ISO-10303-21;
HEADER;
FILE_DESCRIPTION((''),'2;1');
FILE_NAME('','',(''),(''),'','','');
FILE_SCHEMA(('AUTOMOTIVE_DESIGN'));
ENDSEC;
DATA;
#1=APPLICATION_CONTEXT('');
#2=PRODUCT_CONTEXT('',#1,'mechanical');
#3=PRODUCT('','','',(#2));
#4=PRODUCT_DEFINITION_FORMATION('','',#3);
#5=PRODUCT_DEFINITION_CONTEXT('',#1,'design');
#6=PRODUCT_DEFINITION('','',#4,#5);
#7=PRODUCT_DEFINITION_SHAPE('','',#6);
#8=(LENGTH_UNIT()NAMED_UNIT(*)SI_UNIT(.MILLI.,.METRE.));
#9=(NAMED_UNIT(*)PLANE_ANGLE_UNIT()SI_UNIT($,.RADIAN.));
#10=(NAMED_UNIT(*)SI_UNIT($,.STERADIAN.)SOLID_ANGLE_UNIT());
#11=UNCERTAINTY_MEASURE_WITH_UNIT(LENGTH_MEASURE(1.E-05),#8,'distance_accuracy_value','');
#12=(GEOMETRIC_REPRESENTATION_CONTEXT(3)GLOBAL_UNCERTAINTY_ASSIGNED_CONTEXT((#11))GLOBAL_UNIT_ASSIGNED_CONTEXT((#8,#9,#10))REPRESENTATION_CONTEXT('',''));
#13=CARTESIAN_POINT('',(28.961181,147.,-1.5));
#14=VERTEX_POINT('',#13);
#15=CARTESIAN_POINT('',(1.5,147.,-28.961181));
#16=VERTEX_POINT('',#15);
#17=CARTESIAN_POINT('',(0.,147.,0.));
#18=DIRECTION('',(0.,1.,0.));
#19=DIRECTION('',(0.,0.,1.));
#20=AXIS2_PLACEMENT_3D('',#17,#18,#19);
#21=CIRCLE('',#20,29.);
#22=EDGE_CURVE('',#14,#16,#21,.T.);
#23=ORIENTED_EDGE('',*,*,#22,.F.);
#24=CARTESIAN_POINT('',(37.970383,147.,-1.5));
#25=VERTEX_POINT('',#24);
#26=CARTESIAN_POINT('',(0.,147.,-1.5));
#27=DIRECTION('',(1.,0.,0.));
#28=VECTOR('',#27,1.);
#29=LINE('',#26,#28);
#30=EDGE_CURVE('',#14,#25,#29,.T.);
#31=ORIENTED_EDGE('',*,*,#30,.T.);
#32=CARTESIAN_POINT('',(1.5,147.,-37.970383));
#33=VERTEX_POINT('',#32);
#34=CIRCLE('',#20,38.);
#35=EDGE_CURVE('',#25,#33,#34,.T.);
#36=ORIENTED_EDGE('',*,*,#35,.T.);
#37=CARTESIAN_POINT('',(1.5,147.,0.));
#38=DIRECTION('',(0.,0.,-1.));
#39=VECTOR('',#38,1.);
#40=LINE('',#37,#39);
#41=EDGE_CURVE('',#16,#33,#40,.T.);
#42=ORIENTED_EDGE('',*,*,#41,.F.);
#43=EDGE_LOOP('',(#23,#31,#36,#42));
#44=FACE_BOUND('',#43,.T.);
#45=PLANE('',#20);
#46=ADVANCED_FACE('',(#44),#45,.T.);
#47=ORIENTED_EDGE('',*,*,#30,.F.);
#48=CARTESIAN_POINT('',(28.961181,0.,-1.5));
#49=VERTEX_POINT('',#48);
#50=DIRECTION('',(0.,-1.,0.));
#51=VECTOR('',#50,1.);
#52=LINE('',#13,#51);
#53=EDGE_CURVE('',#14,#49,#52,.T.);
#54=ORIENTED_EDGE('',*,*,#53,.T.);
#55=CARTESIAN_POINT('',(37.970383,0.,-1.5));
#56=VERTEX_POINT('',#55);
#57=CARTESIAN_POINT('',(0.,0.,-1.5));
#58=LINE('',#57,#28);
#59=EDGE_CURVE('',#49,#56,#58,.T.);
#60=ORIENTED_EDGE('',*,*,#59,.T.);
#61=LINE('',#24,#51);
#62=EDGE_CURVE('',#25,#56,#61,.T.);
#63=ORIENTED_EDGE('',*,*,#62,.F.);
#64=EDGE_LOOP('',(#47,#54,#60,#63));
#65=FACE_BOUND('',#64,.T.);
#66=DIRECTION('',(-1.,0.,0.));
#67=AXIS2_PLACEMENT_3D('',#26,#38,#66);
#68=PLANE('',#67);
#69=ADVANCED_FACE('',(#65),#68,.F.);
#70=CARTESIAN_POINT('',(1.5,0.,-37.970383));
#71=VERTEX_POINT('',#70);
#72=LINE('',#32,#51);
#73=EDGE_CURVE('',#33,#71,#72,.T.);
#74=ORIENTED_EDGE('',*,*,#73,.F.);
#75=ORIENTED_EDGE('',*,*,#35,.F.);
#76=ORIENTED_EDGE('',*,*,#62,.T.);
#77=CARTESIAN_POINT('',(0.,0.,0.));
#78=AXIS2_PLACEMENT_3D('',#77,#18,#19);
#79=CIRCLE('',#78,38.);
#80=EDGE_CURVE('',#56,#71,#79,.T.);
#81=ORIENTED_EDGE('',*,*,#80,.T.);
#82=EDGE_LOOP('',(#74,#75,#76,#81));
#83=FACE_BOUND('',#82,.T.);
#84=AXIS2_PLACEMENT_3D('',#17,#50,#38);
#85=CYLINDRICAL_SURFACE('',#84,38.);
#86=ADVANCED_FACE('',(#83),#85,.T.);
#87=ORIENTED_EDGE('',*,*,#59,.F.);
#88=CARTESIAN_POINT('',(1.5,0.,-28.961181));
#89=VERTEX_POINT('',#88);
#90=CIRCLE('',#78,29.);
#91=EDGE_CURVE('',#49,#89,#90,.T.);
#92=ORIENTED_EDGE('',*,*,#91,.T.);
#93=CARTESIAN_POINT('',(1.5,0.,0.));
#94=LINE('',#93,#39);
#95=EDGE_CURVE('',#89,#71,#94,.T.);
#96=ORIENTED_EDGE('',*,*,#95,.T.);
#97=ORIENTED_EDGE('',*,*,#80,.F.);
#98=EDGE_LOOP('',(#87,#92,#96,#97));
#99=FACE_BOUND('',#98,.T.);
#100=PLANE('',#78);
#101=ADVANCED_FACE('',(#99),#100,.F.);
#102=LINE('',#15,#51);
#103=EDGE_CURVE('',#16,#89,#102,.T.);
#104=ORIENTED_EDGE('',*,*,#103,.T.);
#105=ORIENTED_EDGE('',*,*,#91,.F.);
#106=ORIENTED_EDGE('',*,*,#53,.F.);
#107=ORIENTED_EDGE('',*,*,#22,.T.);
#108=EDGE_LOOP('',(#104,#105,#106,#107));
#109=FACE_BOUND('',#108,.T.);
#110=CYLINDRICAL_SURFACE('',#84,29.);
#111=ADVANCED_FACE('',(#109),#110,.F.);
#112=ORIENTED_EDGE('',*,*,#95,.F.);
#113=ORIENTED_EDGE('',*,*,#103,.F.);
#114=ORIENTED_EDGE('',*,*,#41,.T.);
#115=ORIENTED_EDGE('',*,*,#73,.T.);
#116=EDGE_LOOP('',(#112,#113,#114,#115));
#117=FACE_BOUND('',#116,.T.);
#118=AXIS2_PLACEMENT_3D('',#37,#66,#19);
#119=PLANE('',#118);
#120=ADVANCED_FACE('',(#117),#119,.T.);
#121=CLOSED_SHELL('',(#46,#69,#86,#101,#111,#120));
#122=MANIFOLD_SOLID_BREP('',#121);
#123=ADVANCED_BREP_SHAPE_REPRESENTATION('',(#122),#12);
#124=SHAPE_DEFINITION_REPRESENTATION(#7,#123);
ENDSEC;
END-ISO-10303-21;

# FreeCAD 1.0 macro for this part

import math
import FreeCAD as App
import Part
import Sketcher
from FreeCAD import Vector

doc = App.newDocument("Part")
body = doc.addObject("PartDesign::Body", "Body")

# Sketch on XZ plane
sketch1 = body.newObject("Sketcher::SketchObject", "Sketch")
sketch1.AttachmentSupport = (doc.getObject("XZ_Plane"), [""])
sketch1.MapMode = "FlatFace"
sketch1.addGeometry([
    Part.LineSegment(Vector(29, -2, 0), Vector(38, -2, 0)),
    Part.ArcOfCircle(Part.Circle(Vector(0, 0, 0), Vector(0, 0, 1), 38), math.radians(-88), math.radians(-2)),
    Part.LineSegment(Vector(2, -38, 0), Vector(2, -29, 0)),
    Part.ArcOfCircle(Part.Circle(Vector(0, 0, 0), Vector(0, 0, 1), 29), math.radians(-87), math.radians(-3)),
], False)
sketch1.addConstraint([
    Sketcher.Constraint("Coincident", 0, 2, 1, 2),
    Sketcher.Constraint("Coincident", 1, 1, 2, 1),
    Sketcher.Constraint("Coincident", 2, 2, 3, 1),
    Sketcher.Constraint("Coincident", 3, 2, 0, 1),
    Sketcher.Constraint("Horizontal", 0),
    Sketcher.Constraint("Vertical", 2),
    Sketcher.Constraint("Coincident", 1, 3, -1, 1),
    Sketcher.Constraint("Coincident", 3, 3, -1, 1),
    Sketcher.Constraint("Equal", 0, 2),
    Sketcher.Constraint("Radius", 1, 38.0),
    Sketcher.Constraint("Radius", 3, 29.0),
    Sketcher.Constraint("DistanceY", 0, 2, -1, 1, 1.5),
])
pad1 = body.newObject("PartDesign::Pad", "Pad")
pad1.Profile = sketch1
pad1.Length = 147
pad1.Reversed = True

doc.recompute()
